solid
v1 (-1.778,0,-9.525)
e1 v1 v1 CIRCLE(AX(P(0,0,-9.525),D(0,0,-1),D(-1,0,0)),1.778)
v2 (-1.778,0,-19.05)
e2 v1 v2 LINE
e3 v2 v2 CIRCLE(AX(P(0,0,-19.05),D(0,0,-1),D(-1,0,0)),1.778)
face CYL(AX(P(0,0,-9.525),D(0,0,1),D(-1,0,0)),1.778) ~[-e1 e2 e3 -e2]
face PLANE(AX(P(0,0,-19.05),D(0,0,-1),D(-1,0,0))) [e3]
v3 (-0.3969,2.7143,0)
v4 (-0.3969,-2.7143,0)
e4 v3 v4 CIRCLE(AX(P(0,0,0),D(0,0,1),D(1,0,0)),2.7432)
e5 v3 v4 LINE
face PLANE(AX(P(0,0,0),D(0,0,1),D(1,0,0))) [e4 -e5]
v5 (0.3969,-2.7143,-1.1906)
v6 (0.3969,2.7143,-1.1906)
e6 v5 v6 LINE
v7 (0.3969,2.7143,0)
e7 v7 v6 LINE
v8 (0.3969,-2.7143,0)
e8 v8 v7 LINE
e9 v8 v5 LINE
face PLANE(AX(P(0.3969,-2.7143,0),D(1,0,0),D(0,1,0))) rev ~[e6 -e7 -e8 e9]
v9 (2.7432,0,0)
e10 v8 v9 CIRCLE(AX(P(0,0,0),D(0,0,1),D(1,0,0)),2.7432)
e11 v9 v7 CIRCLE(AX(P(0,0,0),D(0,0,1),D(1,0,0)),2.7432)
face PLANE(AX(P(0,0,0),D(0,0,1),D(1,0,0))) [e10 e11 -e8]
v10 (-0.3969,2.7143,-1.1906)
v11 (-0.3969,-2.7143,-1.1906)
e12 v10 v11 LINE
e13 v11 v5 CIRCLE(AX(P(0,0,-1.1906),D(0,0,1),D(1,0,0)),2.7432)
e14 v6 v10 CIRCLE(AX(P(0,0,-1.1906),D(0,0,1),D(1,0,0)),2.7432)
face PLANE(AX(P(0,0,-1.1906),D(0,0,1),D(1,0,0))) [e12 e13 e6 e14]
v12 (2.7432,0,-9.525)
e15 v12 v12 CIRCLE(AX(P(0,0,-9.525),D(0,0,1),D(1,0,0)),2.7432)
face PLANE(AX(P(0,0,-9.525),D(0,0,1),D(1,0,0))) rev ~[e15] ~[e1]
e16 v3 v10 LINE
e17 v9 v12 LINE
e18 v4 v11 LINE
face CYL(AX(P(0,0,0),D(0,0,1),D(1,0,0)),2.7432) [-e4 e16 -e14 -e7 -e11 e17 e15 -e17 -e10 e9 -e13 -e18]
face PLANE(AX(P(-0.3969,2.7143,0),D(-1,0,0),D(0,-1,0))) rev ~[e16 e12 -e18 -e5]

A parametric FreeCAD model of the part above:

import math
import FreeCAD as App
import Part
import Sketcher
Q = App.Units.Quantity

doc = App.newDocument("Part")
body = doc.addObject("PartDesign::Body", "Body")

sketch1 = doc.addObject("Sketcher::SketchObject", "Sketch")
body.addObject(sketch1)
sketch1.AttachmentSupport = (doc.XY_Plane, [""])
sketch1.MapMode = "FlatFace"
sketch1.addGeometry(Part.Circle(App.Vector(0, 0, 0), App.Vector(0, 0, 1), 2.7432), False)
sketch1.addConstraint([
    Sketcher.Constraint("Coincident", 0, 3, -1, 1),
    Sketcher.Constraint("Diameter", 0, Q("0.216 in")),
])
pad1 = doc.addObject("PartDesign::Pad", "Pad")
body.addObject(pad1)
pad1.Profile = sketch1
pad1.Length = Q("0.375 in")
pad1.Reversed = True

sketch2 = doc.addObject("Sketcher::SketchObject", "Sketch001")
body.addObject(sketch2)
sketch2.AttachmentSupport = (doc.XY_Plane, [""])
sketch2.MapMode = "FlatFace"
sketch2.AttachmentOffset = App.Placement(App.Vector(0, 0, -0.375 * 25.4), App.Rotation())
sketch2.addGeometry(Part.Circle(App.Vector(0, 0, 0), App.Vector(0, 0, 1), 1.778), False)
sketch2.addConstraint([
    Sketcher.Constraint("Coincident", 0, 3, -1, 1),
    Sketcher.Constraint("Diameter", 0, Q("0.14 in")),
])
pad2 = doc.addObject("PartDesign::Pad", "Pad001")
body.addObject(pad2)
pad2.Profile = sketch2
pad2.Length = Q("0.375 in")
pad2.Reversed = True

sketch3 = doc.addObject("Sketcher::SketchObject", "Sketch002")
body.addObject(sketch3)
sketch3.AttachmentSupport = (doc.XY_Plane, [""])
sketch3.MapMode = "FlatFace"
sketch3.addGeometry([
    Part.LineSegment(App.Vector(0.3969, -2.7143, 0), App.Vector(0.3969, 2.7143, 0)),
    Part.ArcOfCircle(Part.Circle(App.Vector(0, 0, 0), App.Vector(0, 0, 1), 2.7432), math.radians(81.680852), math.radians(98.319148)),
    Part.LineSegment(App.Vector(-0.3969, 2.7143, 0), App.Vector(-0.3969, -2.7143, 0)),
    Part.ArcOfCircle(Part.Circle(App.Vector(0, 0, 0), App.Vector(0, 0, 1), 2.7432), math.radians(-98.319148), math.radians(-81.680852)),
], False)
sketch3.addConstraint([
    Sketcher.Constraint("Coincident", 0, 2, 1, 1),
    Sketcher.Constraint("Coincident", 1, 2, 2, 1),
    Sketcher.Constraint("Coincident", 2, 2, 3, 1),
    Sketcher.Constraint("Coincident", 3, 2, 0, 1),
    Sketcher.Constraint("Vertical", 0),
    Sketcher.Constraint("Vertical", 2),
    Sketcher.Constraint("Coincident", 1, 3, -1, 1),
    Sketcher.Constraint("Coincident", 3, 3, -1, 1),
    Sketcher.Constraint("Equal", 1, 3),
    Sketcher.Constraint("Horizontal", 0, 2, 1, 2),
    Sketcher.Constraint("DistanceX", -1, 1, 0, 2, Q("0.0156299 in")),
    Sketcher.Constraint("Radius", 1, Q("0.108 in")),
])
pocket1 = doc.addObject("PartDesign::Pocket", "Pocket")
body.addObject(pocket1)
pocket1.Profile = sketch3
pocket1.Length = Q("0.046874 in")

doc.recompute()
